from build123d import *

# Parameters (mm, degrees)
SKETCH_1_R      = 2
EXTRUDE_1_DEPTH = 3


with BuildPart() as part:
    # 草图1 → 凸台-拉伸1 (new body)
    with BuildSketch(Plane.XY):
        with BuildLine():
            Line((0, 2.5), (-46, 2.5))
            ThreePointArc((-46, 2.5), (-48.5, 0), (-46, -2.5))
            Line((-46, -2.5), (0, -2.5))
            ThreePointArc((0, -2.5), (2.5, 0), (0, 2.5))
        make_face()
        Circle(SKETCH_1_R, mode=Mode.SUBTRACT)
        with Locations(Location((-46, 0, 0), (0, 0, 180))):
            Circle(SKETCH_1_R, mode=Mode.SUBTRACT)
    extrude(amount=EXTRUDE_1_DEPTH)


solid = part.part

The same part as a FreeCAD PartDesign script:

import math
import FreeCAD as App
import Part
import Sketcher
Q = App.Units.Quantity

doc = App.newDocument("Part")
params = doc.addObject("Spreadsheet::Sheet", "Params")
for row, (alias, value) in enumerate([
    ("sketch1_diameter", "4 mm"),
    ("sketch1_radius", "2.5 mm"),
    ("sketch1_width", "46 mm"),
    ("pad1_length", "3 mm"),
], start=1):
    params.set(f"A{row}", alias)
    params.set(f"B{row}", "=" + value)
    params.setAlias(f"B{row}", alias)

body = doc.addObject("PartDesign::Body", "Body")

# Sketch on XY plane
sketch1 = body.newObject("Sketcher::SketchObject", "Sketch")
sketch1.AttachmentSupport = (doc.getObject("XY_Plane"), [""])
sketch1.MapMode = "FlatFace"
sketch1.addGeometry([
    Part.LineSegment(App.Vector(0, 2.5, 0), App.Vector(-46, 2.5, 0)),  # 0
    Part.ArcOfCircle(Part.Circle(App.Vector(-46, 0, 0), App.Vector(0, 0, 1), 2.5), math.radians(90), math.radians(270)),  # 1
    Part.LineSegment(App.Vector(-46, -2.5, 0), App.Vector(0, -2.5, 0)),  # 2
    Part.ArcOfCircle(Part.Circle(App.Vector(0, 0, 0), App.Vector(0, 0, 1), 2.5), math.radians(-90), math.radians(90)),  # 3
    Part.Circle(App.Vector(-46, 0, 0), App.Vector(0, 0, 1), 2),  # 4
    Part.Circle(App.Vector(0, 0, 0), App.Vector(0, 0, 1), 2),  # 5
], False)
sketch1.addConstraint([
    Sketcher.Constraint("Tangent", 0, 2, 1, 1),
    Sketcher.Constraint("Tangent", 1, 2, 2, 1),
    Sketcher.Constraint("Tangent", 2, 2, 3, 1),
    Sketcher.Constraint("Tangent", 3, 2, 0, 1),
    Sketcher.Constraint("Horizontal", 0),
    Sketcher.Constraint("Horizontal", 2),
    Sketcher.Constraint("Coincident", 3, 3, -1, 1),
    Sketcher.Constraint("Coincident", 5, 3, -1, 1),
    Sketcher.Constraint("Coincident", 4, 3, 1, 3),
    Sketcher.Constraint("Equal", 4, 5),
    Sketcher.Constraint("Diameter", 4, Q("4 mm")),
    Sketcher.Constraint("Radius", 1, Q("2.5 mm")),
    Sketcher.Constraint("DistanceX", 0, 2, 0, 1, Q("46 mm")),
])
sketch1.setExpression("Constraints[10]", "Params.sketch1_diameter")
sketch1.setExpression("Constraints[11]", "Params.sketch1_radius")
sketch1.setExpression("Constraints[12]", "Params.sketch1_width")
pad1 = body.newObject("PartDesign::Pad", "Pad")
pad1.Profile = sketch1
pad1.setExpression("Length", "Params.pad1_length")

doc.recompute()
